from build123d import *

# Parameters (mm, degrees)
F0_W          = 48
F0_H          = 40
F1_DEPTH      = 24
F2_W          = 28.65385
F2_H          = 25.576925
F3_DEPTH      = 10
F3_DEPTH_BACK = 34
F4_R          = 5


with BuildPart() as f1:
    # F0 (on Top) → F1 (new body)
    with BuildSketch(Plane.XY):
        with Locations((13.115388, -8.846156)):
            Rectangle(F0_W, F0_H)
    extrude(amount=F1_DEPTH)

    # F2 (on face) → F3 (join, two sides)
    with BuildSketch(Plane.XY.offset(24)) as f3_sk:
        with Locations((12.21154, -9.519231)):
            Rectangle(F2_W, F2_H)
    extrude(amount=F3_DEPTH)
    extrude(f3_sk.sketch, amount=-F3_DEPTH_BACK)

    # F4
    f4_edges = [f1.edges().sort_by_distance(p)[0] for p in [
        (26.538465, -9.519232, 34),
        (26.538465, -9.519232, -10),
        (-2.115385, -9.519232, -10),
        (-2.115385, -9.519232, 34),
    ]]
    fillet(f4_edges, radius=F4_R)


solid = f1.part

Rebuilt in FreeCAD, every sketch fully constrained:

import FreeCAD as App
import Part
import Sketcher
Q = App.Units.Quantity


def edges_at(feature, points):
    """Names of the edges that pass closest to the given points."""
    edges = feature.Shape.Edges
    near = lambda p: min(range(len(edges)), key=lambda i: edges[i].distToShape(Part.Vertex(*p))[0])
    return sorted({f"Edge{near(p) + 1}" for p in points})

doc = App.newDocument("Part")
body = doc.addObject("PartDesign::Body", "Body")

# Sketch on XY plane
sketch1 = doc.addObject("Sketcher::SketchObject", "Sketch")
body.addObject(sketch1)
sketch1.AttachmentSupport = (doc.XY_Plane, [""])
sketch1.MapMode = "FlatFace"
sketch1.addGeometry([
    Part.LineSegment(App.Vector(-10.884612, 11.153844, 0), App.Vector(-10.884612, -28.846156, 0)),
    Part.LineSegment(App.Vector(-10.884612, -28.846156, 0), App.Vector(37.115388, -28.846156, 0)),
    Part.LineSegment(App.Vector(37.115388, -28.846156, 0), App.Vector(37.115388, 11.153844, 0)),
    Part.LineSegment(App.Vector(37.115388, 11.153844, 0), App.Vector(-10.884612, 11.153844, 0)),
], False)
sketch1.addConstraint([
    Sketcher.Constraint("Coincident", 0, 2, 1, 1),
    Sketcher.Constraint("Coincident", 1, 2, 2, 1),
    Sketcher.Constraint("Coincident", 2, 2, 3, 1),
    Sketcher.Constraint("Coincident", 3, 2, 0, 1),
    Sketcher.Constraint("Vertical", 0),
    Sketcher.Constraint("Horizontal", 1),
    Sketcher.Constraint("Vertical", 2),
    Sketcher.Constraint("Horizontal", 3),
    Sketcher.Constraint("DistanceX", 1, 1, 1, 2, Q("48 mm")),
    Sketcher.Constraint("DistanceY", 0, 2, 0, 1, Q("40 mm")),
    Sketcher.Constraint("DistanceX", -1, 1, 1, 2, Q("37.115388 mm")),
    Sketcher.Constraint("DistanceY", 0, 2, -1, 1, Q("28.846156 mm")),
])
pad1 = doc.addObject("PartDesign::Pad", "Pad")
body.addObject(pad1)
pad1.Profile = sketch1
pad1.Length = 24

# Sketch on XY plane
sketch2 = doc.addObject("Sketcher::SketchObject", "Sketch001")
body.addObject(sketch2)
sketch2.AttachmentSupport = (doc.XY_Plane, [""])
sketch2.MapMode = "FlatFace"
sketch2.AttachmentOffset = App.Placement(App.Vector(0, 0, 24), App.Rotation())
sketch2.addGeometry([
    Part.LineSegment(App.Vector(-2.115385, 3.269232, 0), App.Vector(-2.115385, -22.307693, 0)),
    Part.LineSegment(App.Vector(-2.115385, -22.307693, 0), App.Vector(26.538465, -22.307693, 0)),
    Part.LineSegment(App.Vector(26.538465, -22.307693, 0), App.Vector(26.538465, 3.269232, 0)),
    Part.LineSegment(App.Vector(26.538465, 3.269232, 0), App.Vector(-2.115385, 3.269232, 0)),
], False)
sketch2.addConstraint([
    Sketcher.Constraint("Coincident", 0, 2, 1, 1),
    Sketcher.Constraint("Coincident", 1, 2, 2, 1),
    Sketcher.Constraint("Coincident", 2, 2, 3, 1),
    Sketcher.Constraint("Coincident", 3, 2, 0, 1),
    Sketcher.Constraint("Vertical", 0),
    Sketcher.Constraint("Horizontal", 1),
    Sketcher.Constraint("Vertical", 2),
    Sketcher.Constraint("Horizontal", 3),
    Sketcher.Constraint("DistanceX", 1, 1, 1, 2, Q("28.65385 mm")),
    Sketcher.Constraint("DistanceY", 0, 2, 0, 1, Q("25.576925 mm")),
    Sketcher.Constraint("DistanceY", -1, 1, 2, 2, Q("3.269232 mm")),
    Sketcher.Constraint("DistanceX", 0, 2, -1, 1, Q("2.115385 mm")),
])
pad2 = doc.addObject("PartDesign::Pad", "Pad001")
body.addObject(pad2)
pad2.Profile = sketch2
pad2.Type = "TwoLengths"
pad2.Length = 10
pad2.Length2 = 34
doc.recompute()

fillet = doc.addObject("PartDesign::Fillet", "Fillet")
body.addObject(fillet)
fillet.Base = (pad2, edges_at(pad2, [
    (26.538, -9.519, 34),
    (26.538, -9.519, -10),
    (-2.115, -9.519, -10),
    (-2.115, -9.519, 34),
]))
fillet.Radius = 5

doc.recompute()
